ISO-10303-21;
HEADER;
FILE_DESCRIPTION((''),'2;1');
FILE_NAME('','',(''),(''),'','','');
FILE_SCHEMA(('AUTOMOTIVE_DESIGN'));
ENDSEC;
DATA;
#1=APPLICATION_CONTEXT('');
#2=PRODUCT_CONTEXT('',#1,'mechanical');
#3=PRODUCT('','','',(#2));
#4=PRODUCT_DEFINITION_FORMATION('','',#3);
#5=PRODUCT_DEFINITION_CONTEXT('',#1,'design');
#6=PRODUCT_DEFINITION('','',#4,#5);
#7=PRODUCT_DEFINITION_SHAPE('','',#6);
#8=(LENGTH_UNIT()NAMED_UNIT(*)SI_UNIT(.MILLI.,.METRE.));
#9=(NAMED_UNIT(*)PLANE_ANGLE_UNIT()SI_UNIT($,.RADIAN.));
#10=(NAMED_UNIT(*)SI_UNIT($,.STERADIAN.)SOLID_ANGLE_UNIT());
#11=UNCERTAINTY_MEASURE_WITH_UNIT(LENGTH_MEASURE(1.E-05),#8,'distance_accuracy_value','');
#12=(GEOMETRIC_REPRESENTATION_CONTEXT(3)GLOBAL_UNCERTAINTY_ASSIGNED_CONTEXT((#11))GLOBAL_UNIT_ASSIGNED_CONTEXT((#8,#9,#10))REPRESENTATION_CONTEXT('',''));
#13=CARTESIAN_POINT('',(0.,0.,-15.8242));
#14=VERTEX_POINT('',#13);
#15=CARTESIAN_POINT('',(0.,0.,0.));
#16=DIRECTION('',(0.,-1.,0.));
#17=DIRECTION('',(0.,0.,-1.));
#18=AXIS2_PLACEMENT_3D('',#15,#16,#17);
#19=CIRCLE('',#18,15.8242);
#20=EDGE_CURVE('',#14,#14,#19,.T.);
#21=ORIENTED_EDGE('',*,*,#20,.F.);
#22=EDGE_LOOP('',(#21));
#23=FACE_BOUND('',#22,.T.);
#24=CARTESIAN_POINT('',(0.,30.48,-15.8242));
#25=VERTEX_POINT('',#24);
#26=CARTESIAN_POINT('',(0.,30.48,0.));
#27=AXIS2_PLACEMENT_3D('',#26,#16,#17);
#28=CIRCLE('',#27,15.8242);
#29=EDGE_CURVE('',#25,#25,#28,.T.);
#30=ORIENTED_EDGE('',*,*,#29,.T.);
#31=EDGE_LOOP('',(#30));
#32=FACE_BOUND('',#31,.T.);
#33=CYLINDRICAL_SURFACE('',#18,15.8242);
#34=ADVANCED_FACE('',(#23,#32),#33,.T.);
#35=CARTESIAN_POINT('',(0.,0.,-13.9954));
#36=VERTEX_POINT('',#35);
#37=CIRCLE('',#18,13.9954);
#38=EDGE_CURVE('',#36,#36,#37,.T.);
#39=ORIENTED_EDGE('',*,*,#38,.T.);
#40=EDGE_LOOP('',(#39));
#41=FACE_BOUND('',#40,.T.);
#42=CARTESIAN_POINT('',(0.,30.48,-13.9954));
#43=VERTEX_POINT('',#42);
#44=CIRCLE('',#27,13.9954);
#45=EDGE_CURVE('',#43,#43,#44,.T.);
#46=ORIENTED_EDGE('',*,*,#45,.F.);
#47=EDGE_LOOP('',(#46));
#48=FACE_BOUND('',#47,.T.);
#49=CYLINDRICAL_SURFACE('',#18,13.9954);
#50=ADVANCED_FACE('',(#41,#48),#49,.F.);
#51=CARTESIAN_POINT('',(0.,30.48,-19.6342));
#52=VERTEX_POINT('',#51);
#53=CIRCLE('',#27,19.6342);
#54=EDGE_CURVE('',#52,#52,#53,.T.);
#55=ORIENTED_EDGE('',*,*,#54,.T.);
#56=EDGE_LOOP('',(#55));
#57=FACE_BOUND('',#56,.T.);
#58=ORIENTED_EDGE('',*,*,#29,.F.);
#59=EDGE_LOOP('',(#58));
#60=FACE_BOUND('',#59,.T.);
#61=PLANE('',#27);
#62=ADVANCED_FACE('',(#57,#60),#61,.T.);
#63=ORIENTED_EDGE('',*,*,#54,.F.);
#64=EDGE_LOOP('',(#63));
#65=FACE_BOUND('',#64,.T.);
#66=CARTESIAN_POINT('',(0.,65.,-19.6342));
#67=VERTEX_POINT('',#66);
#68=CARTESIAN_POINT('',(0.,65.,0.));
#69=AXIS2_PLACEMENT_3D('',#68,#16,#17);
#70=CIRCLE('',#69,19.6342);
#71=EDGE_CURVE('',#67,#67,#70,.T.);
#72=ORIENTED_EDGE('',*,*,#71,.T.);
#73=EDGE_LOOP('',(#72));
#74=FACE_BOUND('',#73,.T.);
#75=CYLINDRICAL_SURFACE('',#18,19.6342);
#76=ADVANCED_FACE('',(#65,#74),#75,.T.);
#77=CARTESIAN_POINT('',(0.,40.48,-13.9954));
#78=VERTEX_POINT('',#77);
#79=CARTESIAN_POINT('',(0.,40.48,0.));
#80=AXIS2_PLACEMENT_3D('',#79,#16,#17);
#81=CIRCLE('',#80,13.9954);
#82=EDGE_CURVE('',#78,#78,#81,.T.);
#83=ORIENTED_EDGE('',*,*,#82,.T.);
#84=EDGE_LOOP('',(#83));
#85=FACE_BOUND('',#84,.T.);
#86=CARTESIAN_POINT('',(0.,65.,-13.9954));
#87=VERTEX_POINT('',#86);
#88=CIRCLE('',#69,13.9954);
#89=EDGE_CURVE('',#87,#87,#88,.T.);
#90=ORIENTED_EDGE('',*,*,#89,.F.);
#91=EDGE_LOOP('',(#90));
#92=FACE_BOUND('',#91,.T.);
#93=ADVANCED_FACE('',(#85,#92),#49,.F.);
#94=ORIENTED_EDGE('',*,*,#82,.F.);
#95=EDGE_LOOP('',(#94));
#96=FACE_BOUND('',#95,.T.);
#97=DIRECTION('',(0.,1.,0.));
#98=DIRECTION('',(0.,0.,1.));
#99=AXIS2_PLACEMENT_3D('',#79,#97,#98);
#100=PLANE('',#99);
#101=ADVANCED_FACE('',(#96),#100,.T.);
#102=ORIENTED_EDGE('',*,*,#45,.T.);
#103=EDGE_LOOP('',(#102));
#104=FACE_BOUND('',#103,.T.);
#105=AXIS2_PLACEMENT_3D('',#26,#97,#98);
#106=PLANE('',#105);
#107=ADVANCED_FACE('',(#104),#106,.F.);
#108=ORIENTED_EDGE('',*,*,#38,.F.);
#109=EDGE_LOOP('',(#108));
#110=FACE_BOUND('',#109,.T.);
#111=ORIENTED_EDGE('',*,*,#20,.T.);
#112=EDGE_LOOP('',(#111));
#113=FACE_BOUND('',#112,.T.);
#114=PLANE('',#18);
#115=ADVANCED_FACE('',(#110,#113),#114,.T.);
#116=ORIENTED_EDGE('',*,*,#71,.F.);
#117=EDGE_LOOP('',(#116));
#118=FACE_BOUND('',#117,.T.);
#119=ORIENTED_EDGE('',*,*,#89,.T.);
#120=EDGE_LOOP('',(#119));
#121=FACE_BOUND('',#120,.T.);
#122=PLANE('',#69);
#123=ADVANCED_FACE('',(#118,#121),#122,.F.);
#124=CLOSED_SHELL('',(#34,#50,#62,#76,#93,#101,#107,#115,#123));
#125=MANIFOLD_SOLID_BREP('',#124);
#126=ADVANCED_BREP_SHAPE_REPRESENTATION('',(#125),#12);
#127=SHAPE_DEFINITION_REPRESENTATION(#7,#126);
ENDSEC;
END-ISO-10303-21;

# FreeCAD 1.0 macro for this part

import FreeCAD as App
import Part
import Sketcher

V = App.Vector
Q = App.Units.Quantity


def add_polygon(sketch, points):
    """Adds a closed chain of lines whose ends are joined by coincident constraints."""
    first, n = sketch.GeometryCount, len(points)
    for a, b in zip(points, points[1:] + points[:1]):
        sketch.addGeometry(Part.LineSegment(App.Vector(*a, 0), App.Vector(*b, 0)), False)
    for i in range(n):
        sketch.addConstraint(Sketcher.Constraint("Coincident", first + i, 2, first + (i + 1) % n, 1))

doc = App.newDocument("Part")
params = doc.addObject("Spreadsheet::Sheet", "Params")
for row, (alias, value) in enumerate([
    ("sketch1_height", "1.2 in"),
    ("sketch1_width", "0.15 in"),
    ("sketch1_width2", "0.551 in"),
    ("sketch1_width3", "0.072 in"),
    ("revolution_angle", "360 deg"),
], start=1):
    params.set(f"A{row}", alias)
    params.set(f"B{row}", "=" + value)
    params.setAlias(f"B{row}", alias)

body = doc.addObject("PartDesign::Body", "Body")

# Sketch on XY plane
sketch1 = body.newObject("Sketcher::SketchObject", "Sketch")
sketch1.AttachmentSupport = (doc.getObject("XY_Plane"), [""])
sketch1.MapMode = "FlatFace"
add_polygon(sketch1, [(0, 40.48), (0, 30.48), (13.9954, 30.48), (13.9954, 0), (15.8242, 0), (15.8242, 30.48), (19.6342, 30.48), (19.6342, 65), (13.9954, 65), (13.9954, 40.48)])  # lines 0-9
sketch1.addConstraint([
    Sketcher.Constraint("Vertical", 0),
    Sketcher.Constraint("Horizontal", 1),
    Sketcher.Constraint("Vertical", 2),
    Sketcher.Constraint("Horizontal", 3),
    Sketcher.Constraint("Vertical", 4),
    Sketcher.Constraint("Horizontal", 5),
    Sketcher.Constraint("Vertical", 6),
    Sketcher.Constraint("Horizontal", 7),
    Sketcher.Constraint("Vertical", 8),
    Sketcher.Constraint("Horizontal", 9),
    Sketcher.Constraint("PointOnObject", 0, 2, -2),
    Sketcher.Constraint("PointOnObject", 2, 2, -1),
    Sketcher.Constraint("Horizontal", 1, 2, 4, 2),
    Sketcher.Constraint("Vertical", 2, 2, 7, 2),
    Sketcher.Constraint("DistanceY", 2, 2, 2, 1, Q("1.2 in")),
    Sketcher.Constraint("DistanceX", 5, 1, 5, 2, Q("0.15 in")),
    Sketcher.Constraint("DistanceX", 1, 1, 1, 2, Q("0.551 in")),
    Sketcher.Constraint("DistanceX", 3, 1, 3, 2, Q("0.072 in")),
    Sketcher.Constraint("DistanceY", 0, 2, 0, 1, 10.0),
    Sketcher.Constraint("DistanceY", 6, 1, 6, 2, 34.52),
])
sketch1.setExpression("Constraints[24]", "Params.sketch1_height")
sketch1.setExpression("Constraints[25]", "Params.sketch1_width")
sketch1.setExpression("Constraints[26]", "Params.sketch1_width2")
sketch1.setExpression("Constraints[27]", "Params.sketch1_width3")
revolution = body.newObject("PartDesign::Revolution", "Revolution")
revolution.Profile = sketch1
revolution.ReferenceAxis = (sketch1, ["V_Axis"])
revolution.setExpression("Angle", "Params.revolution_angle")

doc.recompute()
